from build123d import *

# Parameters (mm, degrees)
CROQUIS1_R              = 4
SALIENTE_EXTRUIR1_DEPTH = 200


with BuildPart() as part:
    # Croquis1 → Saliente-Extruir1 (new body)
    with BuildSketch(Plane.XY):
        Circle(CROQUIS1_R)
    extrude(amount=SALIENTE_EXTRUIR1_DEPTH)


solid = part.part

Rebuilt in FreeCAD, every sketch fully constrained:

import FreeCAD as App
import Part
import Sketcher

V = App.Vector

doc = App.newDocument("Part")
body = doc.addObject("PartDesign::Body", "Body")

# Sketch on XY plane
sketch1 = body.newObject("Sketcher::SketchObject", "Sketch")
sketch1.AttachmentSupport = (doc.getObject("XY_Plane"), [""])
sketch1.MapMode = "FlatFace"
sketch1.addGeometry(Part.Circle(V(0, 0, 0), V(0, 0, 1), 4), False)
sketch1.addConstraint(Sketcher.Constraint("Coincident", 0, 3, -1, 1))
sketch1.addConstraint(Sketcher.Constraint("Diameter", 0, 8.0))
pad1 = body.newObject("PartDesign::Pad", "Pad")
pad1.Profile = sketch1
pad1.Length = 200

doc.recompute()
